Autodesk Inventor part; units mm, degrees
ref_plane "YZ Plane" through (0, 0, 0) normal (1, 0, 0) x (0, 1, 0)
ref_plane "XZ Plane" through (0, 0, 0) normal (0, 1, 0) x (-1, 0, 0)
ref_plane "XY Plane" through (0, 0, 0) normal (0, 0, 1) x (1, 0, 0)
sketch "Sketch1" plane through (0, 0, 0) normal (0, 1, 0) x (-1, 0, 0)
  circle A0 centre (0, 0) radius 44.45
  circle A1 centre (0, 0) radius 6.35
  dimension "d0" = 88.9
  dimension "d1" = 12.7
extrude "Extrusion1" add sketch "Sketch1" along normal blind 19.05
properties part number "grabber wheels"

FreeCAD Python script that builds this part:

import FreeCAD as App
import Part
import Sketcher

V = App.Vector
Q = App.Units.Quantity

doc = App.newDocument("Part")
params = doc.addObject("Spreadsheet::Sheet", "Params")
for row, (alias, value) in enumerate([
    ("sketch1_diameter", "3.5 in"),
    ("sketch1_diameter2", "0.5 in"),
    ("pad1_length", "0.75 in"),
], start=1):
    params.set(f"A{row}", alias)
    params.set(f"B{row}", "=" + value)
    params.setAlias(f"B{row}", alias)

body = doc.addObject("PartDesign::Body", "Body")

# Sketch on XZ plane
sketch1 = body.newObject("Sketcher::SketchObject", "Sketch")
sketch1.AttachmentSupport = (doc.getObject("XZ_Plane"), [""])
sketch1.MapMode = "FlatFace"
sketch1.addGeometry(Part.Circle(V(0, 0, 0), V(0, 0, 1), 44.45), False)
sketch1.addGeometry(Part.Circle(V(0, 0, 0), V(0, 0, 1), 6.35), False)
sketch1.addConstraint(Sketcher.Constraint("Coincident", 0, 3, -1, 1))
sketch1.addConstraint(Sketcher.Constraint("Coincident", 1, 3, -1, 1))
sketch1.addConstraint(Sketcher.Constraint("Diameter", 0, Q("3.5 in")))
sketch1.addConstraint(Sketcher.Constraint("Diameter", 1, Q("0.5 in")))
sketch1.setExpression("Constraints[2]", "Params.sketch1_diameter")
sketch1.setExpression("Constraints[3]", "Params.sketch1_diameter2")
pad1 = body.newObject("PartDesign::Pad", "Pad")
pad1.Profile = sketch1
pad1.setExpression("Length", "Params.pad1_length")
pad1.Reversed = True

doc.recompute()
